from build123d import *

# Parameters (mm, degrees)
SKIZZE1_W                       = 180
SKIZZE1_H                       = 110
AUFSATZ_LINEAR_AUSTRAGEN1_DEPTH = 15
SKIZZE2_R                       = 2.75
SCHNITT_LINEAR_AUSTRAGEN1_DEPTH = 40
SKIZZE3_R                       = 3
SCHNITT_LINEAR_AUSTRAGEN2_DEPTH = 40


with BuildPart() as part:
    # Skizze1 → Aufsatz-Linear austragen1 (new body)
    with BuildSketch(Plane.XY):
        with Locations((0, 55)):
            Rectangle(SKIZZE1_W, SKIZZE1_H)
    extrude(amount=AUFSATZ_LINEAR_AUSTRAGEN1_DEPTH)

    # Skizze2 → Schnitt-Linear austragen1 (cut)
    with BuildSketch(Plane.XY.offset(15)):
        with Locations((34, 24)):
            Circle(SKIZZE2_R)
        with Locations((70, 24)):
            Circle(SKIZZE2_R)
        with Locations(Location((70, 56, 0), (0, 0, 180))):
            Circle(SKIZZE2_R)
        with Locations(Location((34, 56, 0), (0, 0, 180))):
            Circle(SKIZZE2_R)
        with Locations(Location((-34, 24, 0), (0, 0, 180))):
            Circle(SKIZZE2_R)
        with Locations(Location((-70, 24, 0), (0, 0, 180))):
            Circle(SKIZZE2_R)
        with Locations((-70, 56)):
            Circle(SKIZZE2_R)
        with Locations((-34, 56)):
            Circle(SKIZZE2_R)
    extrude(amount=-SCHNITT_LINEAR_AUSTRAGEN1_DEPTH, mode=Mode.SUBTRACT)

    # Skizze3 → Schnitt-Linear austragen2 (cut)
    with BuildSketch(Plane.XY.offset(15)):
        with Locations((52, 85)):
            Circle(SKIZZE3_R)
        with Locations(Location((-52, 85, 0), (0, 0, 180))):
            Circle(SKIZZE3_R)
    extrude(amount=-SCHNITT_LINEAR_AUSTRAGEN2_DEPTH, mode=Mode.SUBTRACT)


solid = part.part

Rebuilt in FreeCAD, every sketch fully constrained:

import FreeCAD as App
import Part
import Sketcher

V = App.Vector
Q = App.Units.Quantity

doc = App.newDocument("Part")
body = doc.addObject("PartDesign::Body", "Body")

# Sketch on XY plane
sketch1 = body.newObject("Sketcher::SketchObject", "Sketch")
sketch1.AttachmentSupport = (doc.getObject("XY_Plane"), [""])
sketch1.MapMode = "FlatFace"
sketch1.addGeometry(Part.LineSegment(V(-90, 110, 0), V(-90, 0, 0)), False)
sketch1.addGeometry(Part.LineSegment(V(-90, 0, 0), V(90, 0, 0)), False)
sketch1.addGeometry(Part.LineSegment(V(90, 0, 0), V(90, 110, 0)), False)
sketch1.addGeometry(Part.LineSegment(V(90, 110, 0), V(-90, 110, 0)), False)
sketch1.addConstraint(Sketcher.Constraint("Coincident", 0, 2, 1, 1))
sketch1.addConstraint(Sketcher.Constraint("Coincident", 1, 2, 2, 1))
sketch1.addConstraint(Sketcher.Constraint("Coincident", 2, 2, 3, 1))
sketch1.addConstraint(Sketcher.Constraint("Coincident", 3, 2, 0, 1))
sketch1.addConstraint(Sketcher.Constraint("Vertical", 0))
sketch1.addConstraint(Sketcher.Constraint("Horizontal", 1))
sketch1.addConstraint(Sketcher.Constraint("Vertical", 2))
sketch1.addConstraint(Sketcher.Constraint("Horizontal", 3))
sketch1.addConstraint(Sketcher.Constraint("Symmetric", 0, 2, 1, 2, -1, 1))
sketch1.addConstraint(Sketcher.Constraint("DistanceX", 1, 1, 1, 2, Q("180 mm")))
sketch1.addConstraint(Sketcher.Constraint("DistanceY", 0, 2, 0, 1, Q("110 mm")))
pad1 = body.newObject("PartDesign::Pad", "Pad")
pad1.Profile = sketch1
pad1.Length = 15

# Sketch on XY plane
sketch2 = body.newObject("Sketcher::SketchObject", "Sketch001")
sketch2.AttachmentSupport = (doc.getObject("XY_Plane"), [""])
sketch2.MapMode = "FlatFace"
sketch2.AttachmentOffset = App.Placement(V(0, 0, 15), App.Rotation())
sketch2.addGeometry(Part.Circle(V(34, 24, 0), V(0, 0, 1), 2.8), False)
sketch2.addGeometry(Part.Circle(V(70, 24, 0), V(0, 0, 1), 2.8), False)
sketch2.addGeometry(Part.Circle(V(70, 56, 0), V(0, 0, 1), 2.8), False)
sketch2.addGeometry(Part.Circle(V(34, 56, 0), V(0, 0, 1), 2.8), False)
sketch2.addGeometry(Part.Circle(V(-34, 24, 0), V(0, 0, 1), 2.8), False)
sketch2.addGeometry(Part.Circle(V(-70, 24, 0), V(0, 0, 1), 2.8), False)
sketch2.addGeometry(Part.Circle(V(-70, 56, 0), V(0, 0, 1), 2.8), False)
sketch2.addGeometry(Part.Circle(V(-34, 56, 0), V(0, 0, 1), 2.8), False)
sketch2.addConstraint(Sketcher.Constraint("Equal", 0, 1))
sketch2.addConstraint(Sketcher.Constraint("Equal", 1, 2))
sketch2.addConstraint(Sketcher.Constraint("Equal", 2, 3))
sketch2.addConstraint(Sketcher.Constraint("Equal", 3, 4))
sketch2.addConstraint(Sketcher.Constraint("Equal", 4, 5))
sketch2.addConstraint(Sketcher.Constraint("Equal", 5, 6))
sketch2.addConstraint(Sketcher.Constraint("Equal", 6, 7))
sketch2.addConstraint(Sketcher.Constraint("Symmetric", 0, 3, 4, 3, -2))
sketch2.addConstraint(Sketcher.Constraint("Symmetric", 1, 3, 5, 3, -2))
sketch2.addConstraint(Sketcher.Constraint("Symmetric", 2, 3, 6, 3, -2))
sketch2.addConstraint(Sketcher.Constraint("Symmetric", 3, 3, 7, 3, -2))
sketch2.addConstraint(Sketcher.Constraint("Horizontal", 0, 3, 1, 3))
sketch2.addConstraint(Sketcher.Constraint("Horizontal", 2, 3, 3, 3))
sketch2.addConstraint(Sketcher.Constraint("Vertical", 1, 3, 2, 3))
sketch2.addConstraint(Sketcher.Constraint("Vertical", 0, 3, 3, 3))
sketch2.addConstraint(Sketcher.Constraint("Diameter", 0, Q("5.5 mm")))
sketch2.addConstraint(Sketcher.Constraint("DistanceX", -1, 1, 0, 3, Q("34 mm")))
sketch2.addConstraint(Sketcher.Constraint("DistanceY", -1, 1, 0, 3, Q("24 mm")))
sketch2.addConstraint(Sketcher.Constraint("DistanceX", -1, 1, 1, 3, Q("70 mm")))
sketch2.addConstraint(Sketcher.Constraint("DistanceY", -1, 1, 2, 3, Q("56 mm")))
pocket1 = body.newObject("PartDesign::Pocket", "Pocket")
pocket1.Profile = sketch2
pocket1.Length = 40

# Sketch on XY plane
sketch3 = body.newObject("Sketcher::SketchObject", "Sketch002")
sketch3.AttachmentSupport = (doc.getObject("XY_Plane"), [""])
sketch3.MapMode = "FlatFace"
sketch3.AttachmentOffset = App.Placement(V(0, 0, 15), App.Rotation())
sketch3.addGeometry(Part.Circle(V(52, 85, 0), V(0, 0, 1), 3), False)
sketch3.addGeometry(Part.Circle(V(-52, 85, 0), V(0, 0, 1), 3), False)
sketch3.addConstraint(Sketcher.Constraint("Equal", 0, 1))
sketch3.addConstraint(Sketcher.Constraint("Symmetric", 0, 3, 1, 3, -2))
sketch3.addConstraint(Sketcher.Constraint("Diameter", 0, Q("6 mm")))
sketch3.addConstraint(Sketcher.Constraint("DistanceX", -1, 1, 0, 3, Q("52 mm")))
sketch3.addConstraint(Sketcher.Constraint("DistanceY", -1, 1, 0, 3, Q("85 mm")))
pocket2 = body.newObject("PartDesign::Pocket", "Pocket001")
pocket2.Profile = sketch3
pocket2.Length = 40

doc.recompute()
